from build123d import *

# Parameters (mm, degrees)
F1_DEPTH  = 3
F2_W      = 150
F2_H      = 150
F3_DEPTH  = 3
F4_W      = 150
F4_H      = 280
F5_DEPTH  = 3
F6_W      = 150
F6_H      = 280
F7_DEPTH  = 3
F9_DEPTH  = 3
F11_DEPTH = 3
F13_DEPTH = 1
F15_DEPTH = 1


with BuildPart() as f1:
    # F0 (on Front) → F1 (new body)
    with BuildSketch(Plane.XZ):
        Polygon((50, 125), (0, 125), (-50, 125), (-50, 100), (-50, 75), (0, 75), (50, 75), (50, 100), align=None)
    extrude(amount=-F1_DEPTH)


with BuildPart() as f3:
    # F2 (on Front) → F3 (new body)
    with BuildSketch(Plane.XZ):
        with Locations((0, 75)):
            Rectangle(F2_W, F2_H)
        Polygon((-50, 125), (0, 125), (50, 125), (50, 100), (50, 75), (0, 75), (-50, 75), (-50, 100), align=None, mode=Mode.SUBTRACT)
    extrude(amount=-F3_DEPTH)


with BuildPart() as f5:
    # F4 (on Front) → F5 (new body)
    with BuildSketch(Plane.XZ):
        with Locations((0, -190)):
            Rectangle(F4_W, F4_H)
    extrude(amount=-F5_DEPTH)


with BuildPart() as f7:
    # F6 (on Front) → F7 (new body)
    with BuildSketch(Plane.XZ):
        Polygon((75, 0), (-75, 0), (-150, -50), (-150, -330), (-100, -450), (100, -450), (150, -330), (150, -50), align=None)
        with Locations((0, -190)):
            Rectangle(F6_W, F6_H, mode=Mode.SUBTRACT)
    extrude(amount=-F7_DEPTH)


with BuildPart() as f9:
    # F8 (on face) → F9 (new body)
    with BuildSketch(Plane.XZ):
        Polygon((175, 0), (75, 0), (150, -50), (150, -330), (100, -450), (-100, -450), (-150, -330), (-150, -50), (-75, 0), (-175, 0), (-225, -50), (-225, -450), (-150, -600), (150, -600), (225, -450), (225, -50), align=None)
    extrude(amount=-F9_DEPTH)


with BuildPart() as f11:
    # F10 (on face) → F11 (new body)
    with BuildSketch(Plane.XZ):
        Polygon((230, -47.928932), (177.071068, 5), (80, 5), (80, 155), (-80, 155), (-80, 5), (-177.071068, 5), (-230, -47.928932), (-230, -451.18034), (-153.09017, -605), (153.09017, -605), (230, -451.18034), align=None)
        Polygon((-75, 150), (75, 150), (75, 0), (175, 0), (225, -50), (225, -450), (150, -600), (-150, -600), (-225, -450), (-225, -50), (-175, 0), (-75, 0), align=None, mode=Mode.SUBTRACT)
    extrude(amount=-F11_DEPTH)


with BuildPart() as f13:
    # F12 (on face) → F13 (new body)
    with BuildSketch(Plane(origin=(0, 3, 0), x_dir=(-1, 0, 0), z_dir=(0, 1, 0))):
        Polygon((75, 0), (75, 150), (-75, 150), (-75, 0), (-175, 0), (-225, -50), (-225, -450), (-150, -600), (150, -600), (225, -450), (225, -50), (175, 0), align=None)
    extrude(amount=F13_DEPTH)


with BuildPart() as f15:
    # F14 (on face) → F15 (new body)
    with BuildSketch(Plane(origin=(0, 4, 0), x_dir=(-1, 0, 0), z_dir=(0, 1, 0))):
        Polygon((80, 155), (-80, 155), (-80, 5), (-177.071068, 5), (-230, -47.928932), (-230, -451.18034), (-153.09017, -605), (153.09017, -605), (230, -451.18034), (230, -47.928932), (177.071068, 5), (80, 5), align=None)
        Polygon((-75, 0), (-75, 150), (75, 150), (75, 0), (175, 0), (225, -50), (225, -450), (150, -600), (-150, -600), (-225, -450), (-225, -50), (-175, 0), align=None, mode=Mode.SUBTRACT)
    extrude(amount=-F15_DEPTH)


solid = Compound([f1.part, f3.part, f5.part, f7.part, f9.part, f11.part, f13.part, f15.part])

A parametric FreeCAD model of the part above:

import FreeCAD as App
import Part
import Sketcher

V = App.Vector

doc = App.newDocument("Part")
body = doc.addObject("PartDesign::Body", "Body")

sketch1 = doc.addObject("Sketcher::SketchObject", "Sketch")
body.addObject(sketch1)
sketch1.AttachmentSupport = (doc.XZ_Plane, [""])
sketch1.MapMode = "FlatFace"
sketch1.addGeometry([
    Part.LineSegment(V(50, 125, 0), V(-50, 125, 0)),
    Part.LineSegment(V(-50, 125, 0), V(-50, 75, 0)),
    Part.LineSegment(V(-50, 75, 0), V(50, 75, 0)),
    Part.LineSegment(V(50, 75, 0), V(50, 125, 0)),
], False)
sketch1.addConstraint([
    Sketcher.Constraint("Coincident", 0, 2, 1, 1),
    Sketcher.Constraint("Coincident", 1, 2, 2, 1),
    Sketcher.Constraint("Coincident", 2, 2, 3, 1),
    Sketcher.Constraint("Coincident", 3, 2, 0, 1),
    Sketcher.Constraint("Horizontal", 0),
    Sketcher.Constraint("Vertical", 1),
    Sketcher.Constraint("Horizontal", 2),
    Sketcher.Constraint("Vertical", 3),
    Sketcher.Constraint("DistanceX", 0, 2, 0, 1, 100.0),
    Sketcher.Constraint("DistanceY", 1, 2, 1, 1, 50.0),
    Sketcher.Constraint("DistanceX", 0, 2, -1, 1, 50.0),
    Sketcher.Constraint("DistanceY", -1, 1, 0, 2, 125.0),
])
pad1 = doc.addObject("PartDesign::Pad", "Pad")
body.addObject(pad1)
pad1.Profile = sketch1
pad1.Length = 3
pad1.Reversed = True
body2 = doc.addObject("PartDesign::Body", "Body001")

sketch2 = doc.addObject("Sketcher::SketchObject", "Sketch001")
body2.addObject(sketch2)
sketch2.AttachmentSupport = (doc.getObject("XZ_Plane001"), [""])
sketch2.MapMode = "FlatFace"
sketch2.addGeometry([
    Part.LineSegment(V(-75, 150, 0), V(-75, 0, 0)),
    Part.LineSegment(V(-75, 0, 0), V(75, 0, 0)),
    Part.LineSegment(V(75, 0, 0), V(75, 150, 0)),
    Part.LineSegment(V(75, 150, 0), V(-75, 150, 0)),
    Part.LineSegment(V(-50, 75, 0), V(-50, 125, 0)),
    Part.LineSegment(V(-50, 125, 0), V(50, 125, 0)),
    Part.LineSegment(V(50, 125, 0), V(50, 75, 0)),
    Part.LineSegment(V(50, 75, 0), V(-50, 75, 0)),
], False)
sketch2.addConstraint([
    Sketcher.Constraint("Coincident", 0, 2, 1, 1),
    Sketcher.Constraint("Coincident", 1, 2, 2, 1),
    Sketcher.Constraint("Coincident", 2, 2, 3, 1),
    Sketcher.Constraint("Coincident", 3, 2, 0, 1),
    Sketcher.Constraint("Coincident", 4, 2, 5, 1),
    Sketcher.Constraint("Coincident", 5, 2, 6, 1),
    Sketcher.Constraint("Coincident", 6, 2, 7, 1),
    Sketcher.Constraint("Coincident", 7, 2, 4, 1),
    Sketcher.Constraint("Vertical", 0),
    Sketcher.Constraint("Horizontal", 1),
    Sketcher.Constraint("Vertical", 2),
    Sketcher.Constraint("Horizontal", 3),
    Sketcher.Constraint("Vertical", 4),
    Sketcher.Constraint("Horizontal", 5),
    Sketcher.Constraint("Vertical", 6),
    Sketcher.Constraint("Horizontal", 7),
    Sketcher.Constraint("Symmetric", 0, 2, 1, 2, -1, 1),
    Sketcher.Constraint("Equal", 3, 0),
    Sketcher.Constraint("DistanceX", 1, 1, 1, 2, 150.0),
    Sketcher.Constraint("DistanceX", 5, 1, 5, 2, 100.0),
    Sketcher.Constraint("DistanceY", 4, 1, 4, 2, 50.0),
    Sketcher.Constraint("DistanceX", 4, 2, -1, 1, 50.0),
    Sketcher.Constraint("DistanceY", -1, 1, 4, 2, 125.0),
])
pad2 = doc.addObject("PartDesign::Pad", "Pad001")
body2.addObject(pad2)
pad2.Profile = sketch2
pad2.Length = 3
pad2.Reversed = True
body3 = doc.addObject("PartDesign::Body", "Body002")

sketch3 = doc.addObject("Sketcher::SketchObject", "Sketch002")
body3.addObject(sketch3)
sketch3.AttachmentSupport = (doc.getObject("XZ_Plane002"), [""])
sketch3.MapMode = "FlatFace"
sketch3.addGeometry([
    Part.LineSegment(V(-75, -50, 0), V(-75, -330, 0)),
    Part.LineSegment(V(-75, -330, 0), V(75, -330, 0)),
    Part.LineSegment(V(75, -330, 0), V(75, -50, 0)),
    Part.LineSegment(V(75, -50, 0), V(-75, -50, 0)),
], False)
sketch3.addConstraint([
    Sketcher.Constraint("Coincident", 0, 2, 1, 1),
    Sketcher.Constraint("Coincident", 1, 2, 2, 1),
    Sketcher.Constraint("Coincident", 2, 2, 3, 1),
    Sketcher.Constraint("Coincident", 3, 2, 0, 1),
    Sketcher.Constraint("Vertical", 0),
    Sketcher.Constraint("Horizontal", 1),
    Sketcher.Constraint("Vertical", 2),
    Sketcher.Constraint("Horizontal", 3),
    Sketcher.Constraint("DistanceX", 1, 1, 1, 2, 150.0),
    Sketcher.Constraint("DistanceY", 0, 2, 0, 1, 280.0),
    Sketcher.Constraint("DistanceX", 0, 2, -1, 1, 75.0),
    Sketcher.Constraint("DistanceY", 0, 2, -1, 1, 330.0),
])
pad3 = doc.addObject("PartDesign::Pad", "Pad002")
body3.addObject(pad3)
pad3.Profile = sketch3
pad3.Length = 3
pad3.Reversed = True
body4 = doc.addObject("PartDesign::Body", "Body003")

sketch4 = doc.addObject("Sketcher::SketchObject", "Sketch003")
body4.addObject(sketch4)
sketch4.AttachmentSupport = (doc.getObject("XZ_Plane003"), [""])
sketch4.MapMode = "FlatFace"
sketch4.addGeometry([
    Part.LineSegment(V(75, 0, 0), V(-75, 0, 0)),
    Part.LineSegment(V(-75, 0, 0), V(-150, -50, 0)),
    Part.LineSegment(V(-150, -50, 0), V(-150, -330, 0)),
    Part.LineSegment(V(-150, -330, 0), V(-100, -450, 0)),
    Part.LineSegment(V(-100, -450, 0), V(100, -450, 0)),
    Part.LineSegment(V(100, -450, 0), V(150, -330, 0)),
    Part.LineSegment(V(150, -330, 0), V(150, -50, 0)),
    Part.LineSegment(V(150, -50, 0), V(75, 0, 0)),
    Part.LineSegment(V(75, -330, 0), V(-75, -330, 0)),
    Part.LineSegment(V(-75, -330, 0), V(-75, -50, 0)),
    Part.LineSegment(V(-75, -50, 0), V(75, -50, 0)),
    Part.LineSegment(V(75, -50, 0), V(75, -330, 0)),
], False)
sketch4.addConstraint([
    Sketcher.Constraint("Coincident", 0, 2, 1, 1),
    Sketcher.Constraint("Coincident", 1, 2, 2, 1),
    Sketcher.Constraint("Coincident", 2, 2, 3, 1),
    Sketcher.Constraint("Coincident", 3, 2, 4, 1),
    Sketcher.Constraint("Coincident", 4, 2, 5, 1),
    Sketcher.Constraint("Coincident", 5, 2, 6, 1),
    Sketcher.Constraint("Coincident", 6, 2, 7, 1),
    Sketcher.Constraint("Coincident", 7, 2, 0, 1),
    Sketcher.Constraint("Coincident", 8, 2, 9, 1),
    Sketcher.Constraint("Coincident", 9, 2, 10, 1),
    Sketcher.Constraint("Coincident", 10, 2, 11, 1),
    Sketcher.Constraint("Coincident", 11, 2, 8, 1),
    Sketcher.Constraint("Horizontal", 0),
    Sketcher.Constraint("Vertical", 2),
    Sketcher.Constraint("Horizontal", 4),
    Sketcher.Constraint("Vertical", 6),
    Sketcher.Constraint("Horizontal", 8),
    Sketcher.Constraint("Vertical", 9),
    Sketcher.Constraint("Horizontal", 10),
    Sketcher.Constraint("Vertical", 11),
    Sketcher.Constraint("Symmetric", 0, 2, 7, 2, -1, 1),
    Sketcher.Constraint("Symmetric", 2, 2, 5, 2, -2),
    Sketcher.Constraint("Horizontal", 1, 2, 6, 2),
    Sketcher.Constraint("Horizontal", 5, 2, 8, 2),
    Sketcher.Constraint("Horizontal", 6, 2, 9, 2),
    Sketcher.Constraint("Vertical", 0, 2, 8, 2),
    Sketcher.Constraint("Vertical", 7, 2, 10, 2),
    Sketcher.Constraint("Equal", 3, 5),
    Sketcher.Constraint("DistanceX", 0, 2, 0, 1, 150.0),
    Sketcher.Constraint("DistanceX", 4, 1, 4, 2, 200.0),
    Sketcher.Constraint("DistanceY", 2, 2, 2, 1, 280.0),
    Sketcher.Constraint("Distance", 3, 130.0),
    Sketcher.Constraint("DistanceX", 1, 2, -1, 1, 150.0),
    Sketcher.Constraint("DistanceY", 1, 2, -1, 1, 50.0),
])
pad4 = doc.addObject("PartDesign::Pad", "Pad003")
body4.addObject(pad4)
pad4.Profile = sketch4
pad4.Length = 3
pad4.Reversed = True
body5 = doc.addObject("PartDesign::Body", "Body004")

sketch5 = doc.addObject("Sketcher::SketchObject", "Sketch004")
body5.addObject(sketch5)
sketch5.AttachmentSupport = (doc.getObject("XZ_Plane004"), [""])
sketch5.MapMode = "FlatFace"
sketch5.addGeometry([
    Part.LineSegment(V(175, 0, 0), V(75, 0, 0)),
    Part.LineSegment(V(75, 0, 0), V(150, -50, 0)),
    Part.LineSegment(V(150, -50, 0), V(150, -330, 0)),
    Part.LineSegment(V(150, -330, 0), V(100, -450, 0)),
    Part.LineSegment(V(100, -450, 0), V(-100, -450, 0)),
    Part.LineSegment(V(-100, -450, 0), V(-150, -330, 0)),
    Part.LineSegment(V(-150, -330, 0), V(-150, -50, 0)),
    Part.LineSegment(V(-150, -50, 0), V(-75, 0, 0)),
    Part.LineSegment(V(-75, 0, 0), V(-175, 0, 0)),
    Part.LineSegment(V(-175, 0, 0), V(-225, -50, 0)),
    Part.LineSegment(V(-225, -50, 0), V(-225, -450, 0)),
    Part.LineSegment(V(-225, -450, 0), V(-150, -600, 0)),
    Part.LineSegment(V(-150, -600, 0), V(150, -600, 0)),
    Part.LineSegment(V(150, -600, 0), V(225, -450, 0)),
    Part.LineSegment(V(225, -450, 0), V(225, -50, 0)),
    Part.LineSegment(V(225, -50, 0), V(175, 0, 0)),
], False)
sketch5.addConstraint([
    Sketcher.Constraint("Coincident", 0, 2, 1, 1),
    Sketcher.Constraint("Coincident", 1, 2, 2, 1),
    Sketcher.Constraint("Coincident", 2, 2, 3, 1),
    Sketcher.Constraint("Coincident", 3, 2, 4, 1),
    Sketcher.Constraint("Coincident", 4, 2, 5, 1),
    Sketcher.Constraint("Coincident", 5, 2, 6, 1),
    Sketcher.Constraint("Coincident", 6, 2, 7, 1),
    Sketcher.Constraint("Coincident", 7, 2, 8, 1),
    Sketcher.Constraint("Coincident", 8, 2, 9, 1),
    Sketcher.Constraint("Coincident", 9, 2, 10, 1),
    Sketcher.Constraint("Coincident", 10, 2, 11, 1),
    Sketcher.Constraint("Coincident", 11, 2, 12, 1),
    Sketcher.Constraint("Coincident", 12, 2, 13, 1),
    Sketcher.Constraint("Coincident", 13, 2, 14, 1),
    Sketcher.Constraint("Coincident", 14, 2, 15, 1),
    Sketcher.Constraint("Coincident", 15, 2, 0, 1),
    Sketcher.Constraint("Horizontal", 0),
    Sketcher.Constraint("Vertical", 2),
    Sketcher.Constraint("Horizontal", 4),
    Sketcher.Constraint("Vertical", 6),
    Sketcher.Constraint("Horizontal", 8),
    Sketcher.Constraint("Vertical", 10),
    Sketcher.Constraint("Horizontal", 12),
    Sketcher.Constraint("Vertical", 14),
    Sketcher.Constraint("Symmetric", 0, 2, 7, 2, -1, 1),
    Sketcher.Constraint("Symmetric", 2, 2, 5, 2, -2),
    Sketcher.Constraint("Symmetric", 10, 2, 13, 2, -2),
    Sketcher.Constraint("Symmetric", 8, 2, 15, 2, -2),
    Sketcher.Constraint("Perpendicular", 9, 15),
    Sketcher.Constraint("Horizontal", 1, 2, 6, 2),
    Sketcher.Constraint("Horizontal", 6, 2, 9, 2),
    Sketcher.Constraint("Horizontal", 4, 2, 10, 2),
    Sketcher.Constraint("Horizontal", 9, 2, 14, 2),
    Sketcher.Constraint("Vertical", 6, 2, 11, 2),
    Sketcher.Constraint("Vertical", 2, 2, 12, 2),
    Sketcher.Constraint("Equal", 3, 5),
    Sketcher.Constraint("DistanceX", 0, 2, 0, 1, 100.0),
    Sketcher.Constraint("DistanceX", 4, 2, 4, 1, 200.0),
    Sketcher.Constraint("DistanceX", 12, 1, 12, 2, 300.0),
    Sketcher.Constraint("DistanceY", 2, 2, 2, 1, 280.0),
    Sketcher.Constraint("DistanceY", 10, 2, 10, 1, 400.0),
    Sketcher.Constraint("DistanceX", -1, 1, 0, 2, 75.0),
    Sketcher.Constraint("DistanceY", 1, 2, -1, 1, 50.0),
    Sketcher.Constraint("DistanceY", 11, 2, -1, 1, 600.0),
])
pad5 = doc.addObject("PartDesign::Pad", "Pad004")
body5.addObject(pad5)
pad5.Profile = sketch5
pad5.Length = 3
pad5.Reversed = True
body6 = doc.addObject("PartDesign::Body", "Body005")

sketch6 = doc.addObject("Sketcher::SketchObject", "Sketch005")
body6.addObject(sketch6)
sketch6.AttachmentSupport = (doc.getObject("XZ_Plane005"), [""])
sketch6.MapMode = "FlatFace"
sketch6.addGeometry([
    Part.LineSegment(V(230, -48, 0), V(177, 5, 0)),
    Part.LineSegment(V(177, 5, 0), V(80, 5, 0)),
    Part.LineSegment(V(80, 5, 0), V(80, 155, 0)),
    Part.LineSegment(V(80, 155, 0), V(-80, 155, 0)),
    Part.LineSegment(V(-80, 155, 0), V(-80, 5, 0)),
    Part.LineSegment(V(-80, 5, 0), V(-177, 5, 0)),
    Part.LineSegment(V(-177, 5, 0), V(-230, -48, 0)),
    Part.LineSegment(V(-230, -48, 0), V(-230, -451, 0)),
    Part.LineSegment(V(-230, -451, 0), V(-153, -605, 0)),
    Part.LineSegment(V(-153, -605, 0), V(153, -605, 0)),
    Part.LineSegment(V(153, -605, 0), V(230, -451, 0)),
    Part.LineSegment(V(230, -451, 0), V(230, -48, 0)),
    Part.LineSegment(V(-75, 0, 0), V(-75, 150, 0)),
    Part.LineSegment(V(-75, 150, 0), V(75, 150, 0)),
    Part.LineSegment(V(75, 150, 0), V(75, 0, 0)),
    Part.LineSegment(V(75, 0, 0), V(175, 0, 0)),
    Part.LineSegment(V(175, 0, 0), V(225, -50, 0)),
    Part.LineSegment(V(225, -50, 0), V(225, -450, 0)),
    Part.LineSegment(V(225, -450, 0), V(150, -600, 0)),
    Part.LineSegment(V(150, -600, 0), V(-150, -600, 0)),
    Part.LineSegment(V(-150, -600, 0), V(-225, -450, 0)),
    Part.LineSegment(V(-225, -450, 0), V(-225, -50, 0)),
    Part.LineSegment(V(-225, -50, 0), V(-175, 0, 0)),
    Part.LineSegment(V(-175, 0, 0), V(-75, 0, 0)),
], False)
sketch6.addConstraint([
    Sketcher.Constraint("Coincident", 0, 2, 1, 1),
    Sketcher.Constraint("Coincident", 1, 2, 2, 1),
    Sketcher.Constraint("Coincident", 2, 2, 3, 1),
    Sketcher.Constraint("Coincident", 3, 2, 4, 1),
    Sketcher.Constraint("Coincident", 4, 2, 5, 1),
    Sketcher.Constraint("Coincident", 5, 2, 6, 1),
    Sketcher.Constraint("Coincident", 6, 2, 7, 1),
    Sketcher.Constraint("Coincident", 7, 2, 8, 1),
    Sketcher.Constraint("Coincident", 8, 2, 9, 1),
    Sketcher.Constraint("Coincident", 9, 2, 10, 1),
    Sketcher.Constraint("Coincident", 10, 2, 11, 1),
    Sketcher.Constraint("Coincident", 11, 2, 0, 1),
    Sketcher.Constraint("Coincident", 12, 2, 13, 1),
    Sketcher.Constraint("Coincident", 13, 2, 14, 1),
    Sketcher.Constraint("Coincident", 14, 2, 15, 1),
    Sketcher.Constraint("Coincident", 15, 2, 16, 1),
    Sketcher.Constraint("Coincident", 16, 2, 17, 1),
    Sketcher.Constraint("Coincident", 17, 2, 18, 1),
    Sketcher.Constraint("Coincident", 18, 2, 19, 1),
    Sketcher.Constraint("Coincident", 19, 2, 20, 1),
    Sketcher.Constraint("Coincident", 20, 2, 21, 1),
    Sketcher.Constraint("Coincident", 21, 2, 22, 1),
    Sketcher.Constraint("Coincident", 22, 2, 23, 1),
    Sketcher.Constraint("Coincident", 23, 2, 12, 1),
    Sketcher.Constraint("Horizontal", 1),
    Sketcher.Constraint("Vertical", 2),
    Sketcher.Constraint("Horizontal", 3),
    Sketcher.Constraint("Vertical", 4),
    Sketcher.Constraint("Horizontal", 5),
    Sketcher.Constraint("Vertical", 7),
    Sketcher.Constraint("Horizontal", 9),
    Sketcher.Constraint("Vertical", 11),
    Sketcher.Constraint("Vertical", 12),
    Sketcher.Constraint("Horizontal", 13),
    Sketcher.Constraint("Vertical", 14),
    Sketcher.Constraint("Horizontal", 15),
    Sketcher.Constraint("Vertical", 17),
    Sketcher.Constraint("Horizontal", 19),
    Sketcher.Constraint("Vertical", 21),
    Sketcher.Constraint("Horizontal", 23),
    Sketcher.Constraint("Symmetric", 15, 2, 22, 2, -1, 1),
    Sketcher.Constraint("Symmetric", 1, 2, 4, 2, -2),
    Sketcher.Constraint("Symmetric", 7, 2, 10, 2, -2),
    Sketcher.Constraint("Symmetric", 17, 2, 20, 2, -2),
    Sketcher.Constraint("Symmetric", 14, 2, 23, 2, -2),
    Sketcher.Constraint("Perpendicular", 0, 6),
    Sketcher.Constraint("Perpendicular", 6, 16),
    Sketcher.Constraint("Parallel", 10, 18),
    Sketcher.Constraint("Parallel", 8, 20),
    Sketcher.Constraint("Perpendicular", 16, 22),
    Sketcher.Constraint("Horizontal", 6, 2, 11, 2),
    Sketcher.Constraint("Horizontal", 16, 2, 21, 2),
    Sketcher.Constraint("Equal", 13, 2),
    Sketcher.Constraint("Equal", 4, 12),
    Sketcher.Constraint("Equal", 8, 10),
    Sketcher.Constraint("DistanceX", 3, 2, 3, 1, 160.0),
    Sketcher.Constraint("DistanceX", 13, 1, 13, 2, 150.0),
    Sketcher.Constraint("DistanceX", 15, 1, 15, 2, 100.0),
    Sketcher.Constraint("DistanceX", 19, 2, 19, 1, 300.0),
    Sketcher.Constraint("DistanceY", 17, 2, 17, 1, 400.0),
    Sketcher.Constraint("DistanceY", -1, 1, 0, 2, 5.0),
    Sketcher.Constraint("DistanceX", 6, 2, -1, 1, 230.0),
    Sketcher.Constraint("DistanceY", 8, 2, -1, 1, 605.0),
    Sketcher.Constraint("DistanceX", -1, 1, 16, 2, 225.0),
    Sketcher.Constraint("DistanceY", 18, 2, -1, 1, 600.0),
    Sketcher.Constraint("DistanceX", 9, 1, 9, 2, 306.18034),
    Sketcher.Constraint("DistanceX", 1, 2, 1, 1, 97.071068),
])
pad6 = doc.addObject("PartDesign::Pad", "Pad005")
body6.addObject(pad6)
pad6.Profile = sketch6
pad6.Length = 3
pad6.Reversed = True
body7 = doc.addObject("PartDesign::Body", "Body006")

sketch7 = doc.addObject("Sketcher::SketchObject", "Sketch006")
body7.addObject(sketch7)
sketch7.AttachmentSupport = (doc.getObject("XZ_Plane006"), [""])
sketch7.MapMode = "FlatFace"
sketch7.AttachmentOffset = App.Placement(V(0, 0, -3), App.Rotation())
sketch7.addGeometry([
    Part.LineSegment(V(-75, 0, 0), V(-75, 150, 0)),
    Part.LineSegment(V(-75, 150, 0), V(75, 150, 0)),
    Part.LineSegment(V(75, 150, 0), V(75, 0, 0)),
    Part.LineSegment(V(75, 0, 0), V(175, 0, 0)),
    Part.LineSegment(V(175, 0, 0), V(225, -50, 0)),
    Part.LineSegment(V(225, -50, 0), V(225, -450, 0)),
    Part.LineSegment(V(225, -450, 0), V(150, -600, 0)),
    Part.LineSegment(V(150, -600, 0), V(-150, -600, 0)),
    Part.LineSegment(V(-150, -600, 0), V(-225, -450, 0)),
    Part.LineSegment(V(-225, -450, 0), V(-225, -50, 0)),
    Part.LineSegment(V(-225, -50, 0), V(-175, 0, 0)),
    Part.LineSegment(V(-175, 0, 0), V(-75, 0, 0)),
], False)
sketch7.addConstraint([
    Sketcher.Constraint("Coincident", 0, 2, 1, 1),
    Sketcher.Constraint("Coincident", 1, 2, 2, 1),
    Sketcher.Constraint("Coincident", 2, 2, 3, 1),
    Sketcher.Constraint("Coincident", 3, 2, 4, 1),
    Sketcher.Constraint("Coincident", 4, 2, 5, 1),
    Sketcher.Constraint("Coincident", 5, 2, 6, 1),
    Sketcher.Constraint("Coincident", 6, 2, 7, 1),
    Sketcher.Constraint("Coincident", 7, 2, 8, 1),
    Sketcher.Constraint("Coincident", 8, 2, 9, 1),
    Sketcher.Constraint("Coincident", 9, 2, 10, 1),
    Sketcher.Constraint("Coincident", 10, 2, 11, 1),
    Sketcher.Constraint("Coincident", 11, 2, 0, 1),
    Sketcher.Constraint("Vertical", 0),
    Sketcher.Constraint("Horizontal", 1),
    Sketcher.Constraint("Vertical", 2),
    Sketcher.Constraint("Horizontal", 3),
    Sketcher.Constraint("Vertical", 5),
    Sketcher.Constraint("Horizontal", 7),
    Sketcher.Constraint("Vertical", 9),
    Sketcher.Constraint("Horizontal", 11),
    Sketcher.Constraint("Symmetric", 3, 2, 10, 2, -1, 1),
    Sketcher.Constraint("Symmetric", 5, 2, 8, 2, -2),
    Sketcher.Constraint("Symmetric", 2, 2, 11, 2, -2),
    Sketcher.Constraint("Perpendicular", 4, 10),
    Sketcher.Constraint("Horizontal", 4, 2, 9, 2),
    Sketcher.Constraint("Equal", 1, 0),
    Sketcher.Constraint("Equal", 6, 8),
    Sketcher.Constraint("DistanceX", 1, 1, 1, 2, 150.0),
    Sketcher.Constraint("DistanceX", 3, 1, 3, 2, 100.0),
    Sketcher.Constraint("DistanceX", 7, 2, 7, 1, 300.0),
    Sketcher.Constraint("DistanceY", 5, 2, 5, 1, 400.0),
    Sketcher.Constraint("DistanceX", -1, 1, 4, 2, 225.0),
    Sketcher.Constraint("DistanceY", 6, 2, -1, 1, 600.0),
])
pad7 = doc.addObject("PartDesign::Pad", "Pad006")
body7.addObject(pad7)
pad7.Profile = sketch7
pad7.Length = 1
pad7.Reversed = True
body8 = doc.addObject("PartDesign::Body", "Body007")

sketch8 = doc.addObject("Sketcher::SketchObject", "Sketch007")
body8.addObject(sketch8)
sketch8.AttachmentSupport = (doc.getObject("XZ_Plane007"), [""])
sketch8.MapMode = "FlatFace"
sketch8.AttachmentOffset = App.Placement(V(0, 0, -4), App.Rotation())
sketch8.addGeometry([
    Part.LineSegment(V(-80, 155, 0), V(80, 155, 0)),
    Part.LineSegment(V(80, 155, 0), V(80, 5, 0)),
    Part.LineSegment(V(80, 5, 0), V(177, 5, 0)),
    Part.LineSegment(V(177, 5, 0), V(230, -48, 0)),
    Part.LineSegment(V(230, -48, 0), V(230, -451, 0)),
    Part.LineSegment(V(230, -451, 0), V(153, -605, 0)),
    Part.LineSegment(V(153, -605, 0), V(-153, -605, 0)),
    Part.LineSegment(V(-153, -605, 0), V(-230, -451, 0)),
    Part.LineSegment(V(-230, -451, 0), V(-230, -48, 0)),
    Part.LineSegment(V(-230, -48, 0), V(-177, 5, 0)),
    Part.LineSegment(V(-177, 5, 0), V(-80, 5, 0)),
    Part.LineSegment(V(-80, 5, 0), V(-80, 155, 0)),
    Part.LineSegment(V(175, 0, 0), V(75, 0, 0)),
    Part.LineSegment(V(75, 0, 0), V(75, 150, 0)),
    Part.LineSegment(V(75, 150, 0), V(-75, 150, 0)),
    Part.LineSegment(V(-75, 150, 0), V(-75, 0, 0)),
    Part.LineSegment(V(-75, 0, 0), V(-175, 0, 0)),
    Part.LineSegment(V(-175, 0, 0), V(-225, -50, 0)),
    Part.LineSegment(V(-225, -50, 0), V(-225, -450, 0)),
    Part.LineSegment(V(-225, -450, 0), V(-150, -600, 0)),
    Part.LineSegment(V(-150, -600, 0), V(150, -600, 0)),
    Part.LineSegment(V(150, -600, 0), V(225, -450, 0)),
    Part.LineSegment(V(225, -450, 0), V(225, -50, 0)),
    Part.LineSegment(V(225, -50, 0), V(175, 0, 0)),
], False)
sketch8.addConstraint([
    Sketcher.Constraint("Coincident", 0, 2, 1, 1),
    Sketcher.Constraint("Coincident", 1, 2, 2, 1),
    Sketcher.Constraint("Coincident", 2, 2, 3, 1),
    Sketcher.Constraint("Coincident", 3, 2, 4, 1),
    Sketcher.Constraint("Coincident", 4, 2, 5, 1),
    Sketcher.Constraint("Coincident", 5, 2, 6, 1),
    Sketcher.Constraint("Coincident", 6, 2, 7, 1),
    Sketcher.Constraint("Coincident", 7, 2, 8, 1),
    Sketcher.Constraint("Coincident", 8, 2, 9, 1),
    Sketcher.Constraint("Coincident", 9, 2, 10, 1),
    Sketcher.Constraint("Coincident", 10, 2, 11, 1),
    Sketcher.Constraint("Coincident", 11, 2, 0, 1),
    Sketcher.Constraint("Coincident", 12, 2, 13, 1),
    Sketcher.Constraint("Coincident", 13, 2, 14, 1),
    Sketcher.Constraint("Coincident", 14, 2, 15, 1),
    Sketcher.Constraint("Coincident", 15, 2, 16, 1),
    Sketcher.Constraint("Coincident", 16, 2, 17, 1),
    Sketcher.Constraint("Coincident", 17, 2, 18, 1),
    Sketcher.Constraint("Coincident", 18, 2, 19, 1),
    Sketcher.Constraint("Coincident", 19, 2, 20, 1),
    Sketcher.Constraint("Coincident", 20, 2, 21, 1),
    Sketcher.Constraint("Coincident", 21, 2, 22, 1),
    Sketcher.Constraint("Coincident", 22, 2, 23, 1),
    Sketcher.Constraint("Coincident", 23, 2, 12, 1),
    Sketcher.Constraint("Horizontal", 0),
    Sketcher.Constraint("Vertical", 1),
    Sketcher.Constraint("Horizontal", 2),
    Sketcher.Constraint("Vertical", 4),
    Sketcher.Constraint("Horizontal", 6),
    Sketcher.Constraint("Vertical", 8),
    Sketcher.Constraint("Horizontal", 10),
    Sketcher.Constraint("Vertical", 11),
    Sketcher.Constraint("Horizontal", 12),
    Sketcher.Constraint("Vertical", 13),
    Sketcher.Constraint("Horizontal", 14),
    Sketcher.Constraint("Vertical", 15),
    Sketcher.Constraint("Horizontal", 16),
    Sketcher.Constraint("Vertical", 18),
    Sketcher.Constraint("Horizontal", 20),
    Sketcher.Constraint("Vertical", 22),
    Sketcher.Constraint("Symmetric", 12, 2, 15, 2, -1, 1),
    Sketcher.Constraint("Symmetric", 4, 2, 7, 2, -2),
    Sketcher.Constraint("Symmetric", 2, 2, 9, 2, -2),
    Sketcher.Constraint("Symmetric", 18, 2, 21, 2, -2),
    Sketcher.Constraint("Symmetric", 16, 2, 23, 2, -2),
    Sketcher.Constraint("Perpendicular", 3, 9),
    Sketcher.Constraint("Parallel", 9, 17),
    Sketcher.Constraint("Parallel", 7, 19),
    Sketcher.Constraint("Parallel", 5, 21),
    Sketcher.Constraint("Perpendicular", 17, 23),
    Sketcher.Constraint("Horizontal", 3, 2, 8, 2),
    Sketcher.Constraint("Equal", 2, 10),
    Sketcher.Constraint("Equal", 14, 1),
    Sketcher.Constraint("Equal", 11, 13),
    Sketcher.Constraint("Equal", 5, 7),
    Sketcher.Constraint("DistanceX", 0, 1, 0, 2, 160.0),
    Sketcher.Constraint("DistanceX", 12, 2, 12, 1, 100.0),
    Sketcher.Constraint("DistanceX", 14, 2, 14, 1, 150.0),
    Sketcher.Constraint("DistanceX", 20, 1, 20, 2, 300.0),
    Sketcher.Constraint("DistanceY", 18, 2, 18, 1, 400.0),
    Sketcher.Constraint("DistanceY", -1, 1, 0, 2, 155.0),
    Sketcher.Constraint("DistanceX", -1, 1, 3, 2, 230.0),
    Sketcher.Constraint("DistanceY", 5, 2, -1, 1, 605.0),
    Sketcher.Constraint("DistanceX", 17, 2, -1, 1, 225.0),
    Sketcher.Constraint("DistanceY", 19, 2, -1, 1, 600.0),
    Sketcher.Constraint("DistanceX", 6, 2, 6, 1, 306.18034),
    Sketcher.Constraint("DistanceX", 2, 1, 2, 2, 97.071068),
])
pad8 = doc.addObject("PartDesign::Pad", "Pad007")
body8.addObject(pad8)
pad8.Profile = sketch8
pad8.Length = 1

doc.recompute()
